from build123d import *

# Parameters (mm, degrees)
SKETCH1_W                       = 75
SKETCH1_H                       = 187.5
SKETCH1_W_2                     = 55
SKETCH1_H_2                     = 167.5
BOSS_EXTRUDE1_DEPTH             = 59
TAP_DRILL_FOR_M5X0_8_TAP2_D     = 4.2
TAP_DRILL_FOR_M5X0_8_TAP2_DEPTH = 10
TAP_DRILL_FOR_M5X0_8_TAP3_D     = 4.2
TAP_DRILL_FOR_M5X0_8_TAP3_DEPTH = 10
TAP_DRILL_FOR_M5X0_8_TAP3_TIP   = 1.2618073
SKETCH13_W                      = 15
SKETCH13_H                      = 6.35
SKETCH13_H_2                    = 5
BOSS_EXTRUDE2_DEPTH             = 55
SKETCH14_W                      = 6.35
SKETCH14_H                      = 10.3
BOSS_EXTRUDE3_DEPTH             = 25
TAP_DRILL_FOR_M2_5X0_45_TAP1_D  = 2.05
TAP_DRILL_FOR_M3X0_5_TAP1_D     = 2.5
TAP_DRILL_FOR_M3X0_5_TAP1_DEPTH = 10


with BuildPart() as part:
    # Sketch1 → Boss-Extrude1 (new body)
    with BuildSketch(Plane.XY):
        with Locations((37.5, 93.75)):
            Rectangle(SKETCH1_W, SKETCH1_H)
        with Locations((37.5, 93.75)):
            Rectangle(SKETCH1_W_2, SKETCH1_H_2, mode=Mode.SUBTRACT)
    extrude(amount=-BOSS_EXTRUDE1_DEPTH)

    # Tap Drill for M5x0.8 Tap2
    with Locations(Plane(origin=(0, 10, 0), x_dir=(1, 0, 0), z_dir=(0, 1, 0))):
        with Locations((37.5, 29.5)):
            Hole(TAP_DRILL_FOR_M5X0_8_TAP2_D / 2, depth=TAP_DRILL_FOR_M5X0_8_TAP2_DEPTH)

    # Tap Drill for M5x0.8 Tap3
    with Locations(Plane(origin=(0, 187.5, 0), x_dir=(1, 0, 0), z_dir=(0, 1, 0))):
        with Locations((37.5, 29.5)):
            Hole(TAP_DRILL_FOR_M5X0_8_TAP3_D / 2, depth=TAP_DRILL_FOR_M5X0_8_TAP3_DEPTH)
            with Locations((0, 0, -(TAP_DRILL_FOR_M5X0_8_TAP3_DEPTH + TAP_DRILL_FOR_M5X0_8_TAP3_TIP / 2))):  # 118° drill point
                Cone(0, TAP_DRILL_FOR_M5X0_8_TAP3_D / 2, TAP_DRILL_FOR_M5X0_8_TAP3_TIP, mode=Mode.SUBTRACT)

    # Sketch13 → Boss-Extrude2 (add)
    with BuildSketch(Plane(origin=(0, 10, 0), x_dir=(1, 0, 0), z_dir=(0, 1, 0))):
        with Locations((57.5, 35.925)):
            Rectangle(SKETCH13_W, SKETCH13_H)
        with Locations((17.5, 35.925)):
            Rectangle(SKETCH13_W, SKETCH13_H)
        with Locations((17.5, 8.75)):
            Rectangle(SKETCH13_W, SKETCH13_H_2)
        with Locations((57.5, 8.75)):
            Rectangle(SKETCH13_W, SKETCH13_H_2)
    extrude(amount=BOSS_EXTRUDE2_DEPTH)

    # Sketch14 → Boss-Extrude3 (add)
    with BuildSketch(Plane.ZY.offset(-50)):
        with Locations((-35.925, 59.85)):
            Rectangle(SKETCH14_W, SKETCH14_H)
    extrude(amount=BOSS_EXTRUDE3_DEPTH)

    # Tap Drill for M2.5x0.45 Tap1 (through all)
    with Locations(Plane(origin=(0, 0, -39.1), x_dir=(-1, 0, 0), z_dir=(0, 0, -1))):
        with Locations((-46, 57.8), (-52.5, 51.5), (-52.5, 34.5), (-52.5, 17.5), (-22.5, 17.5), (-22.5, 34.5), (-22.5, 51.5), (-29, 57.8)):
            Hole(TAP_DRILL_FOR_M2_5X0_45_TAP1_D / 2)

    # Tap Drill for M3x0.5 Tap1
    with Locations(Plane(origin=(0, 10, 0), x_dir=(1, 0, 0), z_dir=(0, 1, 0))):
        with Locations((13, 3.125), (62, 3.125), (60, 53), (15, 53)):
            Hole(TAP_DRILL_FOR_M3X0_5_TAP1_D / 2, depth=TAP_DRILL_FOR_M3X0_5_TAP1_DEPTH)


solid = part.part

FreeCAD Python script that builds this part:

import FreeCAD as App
import Part
import Sketcher

V = App.Vector

doc = App.newDocument("Part")
body = doc.addObject("PartDesign::Body", "Body")

sketch1 = body.newObject("Sketcher::SketchObject", "Sketch")
sketch1.AttachmentSupport = (doc.getObject("XY_Plane"), [""])
sketch1.MapMode = "FlatFace"
sketch1.addGeometry(Part.LineSegment(V(0, 188, 0), V(0, 0, 0)), False)
sketch1.addGeometry(Part.LineSegment(V(0, 0, 0), V(75, 0, 0)), False)
sketch1.addGeometry(Part.LineSegment(V(75, 0, 0), V(75, 188, 0)), False)
sketch1.addGeometry(Part.LineSegment(V(75, 188, 0), V(0, 188, 0)), False)
sketch1.addGeometry(Part.LineSegment(V(65, 10, 0), V(10, 10, 0)), False)
sketch1.addGeometry(Part.LineSegment(V(10, 10, 0), V(10, 178, 0)), False)
sketch1.addGeometry(Part.LineSegment(V(10, 178, 0), V(65, 178, 0)), False)
sketch1.addGeometry(Part.LineSegment(V(65, 178, 0), V(65, 10, 0)), False)
sketch1.addConstraint(Sketcher.Constraint("Coincident", 0, 2, 1, 1))
sketch1.addConstraint(Sketcher.Constraint("Coincident", 1, 2, 2, 1))
sketch1.addConstraint(Sketcher.Constraint("Coincident", 2, 2, 3, 1))
sketch1.addConstraint(Sketcher.Constraint("Coincident", 3, 2, 0, 1))
sketch1.addConstraint(Sketcher.Constraint("Coincident", 4, 2, 5, 1))
sketch1.addConstraint(Sketcher.Constraint("Coincident", 5, 2, 6, 1))
sketch1.addConstraint(Sketcher.Constraint("Coincident", 6, 2, 7, 1))
sketch1.addConstraint(Sketcher.Constraint("Coincident", 7, 2, 4, 1))
sketch1.addConstraint(Sketcher.Constraint("Vertical", 0))
sketch1.addConstraint(Sketcher.Constraint("Horizontal", 1))
sketch1.addConstraint(Sketcher.Constraint("Vertical", 2))
sketch1.addConstraint(Sketcher.Constraint("Horizontal", 3))
sketch1.addConstraint(Sketcher.Constraint("Horizontal", 4))
sketch1.addConstraint(Sketcher.Constraint("Vertical", 5))
sketch1.addConstraint(Sketcher.Constraint("Horizontal", 6))
sketch1.addConstraint(Sketcher.Constraint("Vertical", 7))
sketch1.addConstraint(Sketcher.Constraint("Coincident", 0, 2, -1, 1))
sketch1.addConstraint(Sketcher.Constraint("DistanceX", 1, 1, 1, 2, 75.0))
sketch1.addConstraint(Sketcher.Constraint("DistanceX", 4, 2, 4, 1, 55.0))
sketch1.addConstraint(Sketcher.Constraint("DistanceY", 0, 2, 0, 1, 187.5))
sketch1.addConstraint(Sketcher.Constraint("DistanceY", 5, 1, 5, 2, 167.5))
sketch1.addConstraint(Sketcher.Constraint("DistanceX", -1, 1, 4, 2, 10.0))
sketch1.addConstraint(Sketcher.Constraint("DistanceY", -1, 1, 4, 2, 10.0))
pad1 = body.newObject("PartDesign::Pad", "Pad")
pad1.Profile = sketch1
pad1.Length = 59
pad1.Reversed = True

sketch2 = body.newObject("Sketcher::SketchObject", "Sketch001")
sketch2.AttachmentSupport = (doc.getObject("XZ_Plane"), [""])
sketch2.MapMode = "FlatFace"
sketch2.AttachmentOffset = App.Placement(V(0, 0, -10), App.Rotation())
sketch2.addGeometry(Part.Circle(V(37.5, -29.5, 0), V(0, 0, 1), 2.1), False)
sketch2.addConstraint(Sketcher.Constraint("Diameter", 0, 4.2))
sketch2.addConstraint(Sketcher.Constraint("DistanceX", -1, 1, 0, 3, 37.5))
sketch2.addConstraint(Sketcher.Constraint("DistanceY", 0, 3, -1, 1, 29.5))
doc.recompute()
hole = body.newObject("PartDesign::Hole", "Hole")
hole.Profile = sketch2
hole.ThreadType = "None"
hole.Diameter = 4.2
hole.DepthType = "Dimension"
hole.Depth = 10
hole.DrillPoint = "Flat"
hole.Reversed = True

sketch3 = body.newObject("Sketcher::SketchObject", "Sketch002")
sketch3.AttachmentSupport = (doc.getObject("XZ_Plane"), [""])
sketch3.MapMode = "FlatFace"
sketch3.AttachmentOffset = App.Placement(V(0, 0, -187.5), App.Rotation())
sketch3.addGeometry(Part.Circle(V(37.5, -29.5, 0), V(0, 0, 1), 2.1), False)
sketch3.addConstraint(Sketcher.Constraint("Diameter", 0, 4.2))
sketch3.addConstraint(Sketcher.Constraint("DistanceX", -1, 1, 0, 3, 37.5))
sketch3.addConstraint(Sketcher.Constraint("DistanceY", 0, 3, -1, 1, 29.5))
doc.recompute()
hole2 = body.newObject("PartDesign::Hole", "Hole001")
hole2.Profile = sketch3
hole2.ThreadType = "None"
hole2.Diameter = 4.2
hole2.DepthType = "Dimension"
hole2.Depth = 10
hole2.DrillPoint = "Angled"
hole2.DrillPointAngle = 118
hole2.Reversed = True

sketch4 = body.newObject("Sketcher::SketchObject", "Sketch003")
sketch4.AttachmentSupport = (doc.getObject("XZ_Plane"), [""])
sketch4.MapMode = "FlatFace"
sketch4.AttachmentOffset = App.Placement(V(0, 0, -10), App.Rotation())
sketch4.addGeometry(Part.LineSegment(V(50, -39, 0), V(50, -33, 0)), False)
sketch4.addGeometry(Part.LineSegment(V(50, -33, 0), V(65, -33, 0)), False)
sketch4.addGeometry(Part.LineSegment(V(65, -33, 0), V(65, -39, 0)), False)
sketch4.addGeometry(Part.LineSegment(V(65, -39, 0), V(50, -39, 0)), False)
sketch4.addGeometry(Part.LineSegment(V(10, -39, 0), V(10, -33, 0)), False)
sketch4.addGeometry(Part.LineSegment(V(10, -33, 0), V(25, -33, 0)), False)
sketch4.addGeometry(Part.LineSegment(V(25, -33, 0), V(25, -39, 0)), False)
sketch4.addGeometry(Part.LineSegment(V(25, -39, 0), V(10, -39, 0)), False)
sketch4.addGeometry(Part.LineSegment(V(10, -11, 0), V(10, -6, 0)), False)
sketch4.addGeometry(Part.LineSegment(V(10, -6, 0), V(25, -6, 0)), False)
sketch4.addGeometry(Part.LineSegment(V(25, -6, 0), V(25, -11, 0)), False)
sketch4.addGeometry(Part.LineSegment(V(25, -11, 0), V(10, -11, 0)), False)
sketch4.addGeometry(Part.LineSegment(V(50, -11, 0), V(50, -6, 0)), False)
sketch4.addGeometry(Part.LineSegment(V(50, -6, 0), V(65, -6, 0)), False)
sketch4.addGeometry(Part.LineSegment(V(65, -6, 0), V(65, -11, 0)), False)
sketch4.addGeometry(Part.LineSegment(V(65, -11, 0), V(50, -11, 0)), False)
sketch4.addConstraint(Sketcher.Constraint("Coincident", 0, 2, 1, 1))
sketch4.addConstraint(Sketcher.Constraint("Coincident", 1, 2, 2, 1))
sketch4.addConstraint(Sketcher.Constraint("Coincident", 2, 2, 3, 1))
sketch4.addConstraint(Sketcher.Constraint("Coincident", 3, 2, 0, 1))
sketch4.addConstraint(Sketcher.Constraint("Coincident", 4, 2, 5, 1))
sketch4.addConstraint(Sketcher.Constraint("Coincident", 5, 2, 6, 1))
sketch4.addConstraint(Sketcher.Constraint("Coincident", 6, 2, 7, 1))
sketch4.addConstraint(Sketcher.Constraint("Coincident", 7, 2, 4, 1))
sketch4.addConstraint(Sketcher.Constraint("Coincident", 8, 2, 9, 1))
sketch4.addConstraint(Sketcher.Constraint("Coincident", 9, 2, 10, 1))
sketch4.addConstraint(Sketcher.Constraint("Coincident", 10, 2, 11, 1))
sketch4.addConstraint(Sketcher.Constraint("Coincident", 11, 2, 8, 1))
sketch4.addConstraint(Sketcher.Constraint("Coincident", 12, 2, 13, 1))
sketch4.addConstraint(Sketcher.Constraint("Coincident", 13, 2, 14, 1))
sketch4.addConstraint(Sketcher.Constraint("Coincident", 14, 2, 15, 1))
sketch4.addConstraint(Sketcher.Constraint("Coincident", 15, 2, 12, 1))
sketch4.addConstraint(Sketcher.Constraint("Vertical", 0))
sketch4.addConstraint(Sketcher.Constraint("Horizontal", 1))
sketch4.addConstraint(Sketcher.Constraint("Vertical", 2))
sketch4.addConstraint(Sketcher.Constraint("Horizontal", 3))
sketch4.addConstraint(Sketcher.Constraint("Vertical", 4))
sketch4.addConstraint(Sketcher.Constraint("Horizontal", 5))
sketch4.addConstraint(Sketcher.Constraint("Vertical", 6))
sketch4.addConstraint(Sketcher.Constraint("Horizontal", 7))
sketch4.addConstraint(Sketcher.Constraint("Vertical", 8))
sketch4.addConstraint(Sketcher.Constraint("Horizontal", 9))
sketch4.addConstraint(Sketcher.Constraint("Vertical", 10))
sketch4.addConstraint(Sketcher.Constraint("Horizontal", 11))
sketch4.addConstraint(Sketcher.Constraint("Vertical", 12))
sketch4.addConstraint(Sketcher.Constraint("Horizontal", 13))
sketch4.addConstraint(Sketcher.Constraint("Vertical", 14))
sketch4.addConstraint(Sketcher.Constraint("Horizontal", 15))
sketch4.addConstraint(Sketcher.Constraint("Horizontal", 1, 2, 4, 2))
sketch4.addConstraint(Sketcher.Constraint("Horizontal", 3, 2, 6, 2))
sketch4.addConstraint(Sketcher.Constraint("Horizontal", 9, 2, 12, 2))
sketch4.addConstraint(Sketcher.Constraint("Horizontal", 11, 2, 14, 2))
sketch4.addConstraint(Sketcher.Constraint("Vertical", 7, 2, 8, 2))
sketch4.addConstraint(Sketcher.Constraint("Vertical", 6, 2, 9, 2))
sketch4.addConstraint(Sketcher.Constraint("Vertical", 3, 2, 12, 2))
sketch4.addConstraint(Sketcher.Constraint("Vertical", 2, 2, 13, 2))
sketch4.addConstraint(Sketcher.Constraint("Equal", 3, 5))
sketch4.addConstraint(Sketcher.Constraint("DistanceX", 1, 1, 1, 2, 15.0))
sketch4.addConstraint(Sketcher.Constraint("DistanceY", 8, 1, 8, 2, 5.0))
sketch4.addConstraint(Sketcher.Constraint("DistanceX", -1, 1, 0, 2, 50.0))
sketch4.addConstraint(Sketcher.Constraint("DistanceX", -1, 1, 4, 2, 10.0))
sketch4.addConstraint(Sketcher.Constraint("DistanceY", 0, 1, 0, 2, 6.35))
sketch4.addConstraint(Sketcher.Constraint("DistanceY", 2, 2, -1, 1, 39.1))
sketch4.addConstraint(Sketcher.Constraint("DistanceY", 4, 2, 8, 2, 26.5))
pad2 = body.newObject("PartDesign::Pad", "Pad001")
pad2.Profile = sketch4
pad2.Length = 55
pad2.Reversed = True

sketch5 = body.newObject("Sketcher::SketchObject", "Sketch004")
sketch5.AttachmentSupport = (doc.getObject("YZ_Plane"), [""])
sketch5.MapMode = "FlatFace"
sketch5.AttachmentOffset = App.Placement(V(0, 0, 50), App.Rotation())
sketch5.addGeometry(Part.LineSegment(V(65, -39, 0), V(55, -39, 0)), False)
sketch5.addGeometry(Part.LineSegment(V(55, -39, 0), V(55, -33, 0)), False)
sketch5.addGeometry(Part.LineSegment(V(55, -33, 0), V(65, -33, 0)), False)
sketch5.addGeometry(Part.LineSegment(V(65, -33, 0), V(65, -39, 0)), False)
sketch5.addConstraint(Sketcher.Constraint("Coincident", 0, 2, 1, 1))
sketch5.addConstraint(Sketcher.Constraint("Coincident", 1, 2, 2, 1))
sketch5.addConstraint(Sketcher.Constraint("Coincident", 2, 2, 3, 1))
sketch5.addConstraint(Sketcher.Constraint("Coincident", 3, 2, 0, 1))
sketch5.addConstraint(Sketcher.Constraint("Horizontal", 0))
sketch5.addConstraint(Sketcher.Constraint("Vertical", 1))
sketch5.addConstraint(Sketcher.Constraint("Horizontal", 2))
sketch5.addConstraint(Sketcher.Constraint("Vertical", 3))
sketch5.addConstraint(Sketcher.Constraint("DistanceX", 0, 2, 0, 1, 10.3))
sketch5.addConstraint(Sketcher.Constraint("DistanceX", -1, 1, 2, 2, 65.0))
sketch5.addConstraint(Sketcher.Constraint("DistanceY", 1, 1, 1, 2, 6.35))
sketch5.addConstraint(Sketcher.Constraint("DistanceY", 0, 2, -1, 1, 39.1))
pad3 = body.newObject("PartDesign::Pad", "Pad002")
pad3.Profile = sketch5
pad3.Length = 25
pad3.Reversed = True

sketch6 = body.newObject("Sketcher::SketchObject", "Sketch005")
sketch6.AttachmentSupport = (doc.getObject("XY_Plane"), [""])
sketch6.MapMode = "FlatFace"
sketch6.AttachmentOffset = App.Placement(V(0, 0, -39.1), App.Rotation())
sketch6.addGeometry(Part.Circle(V(46, 57.8, 0), V(0, 0, 1), 1), False)
sketch6.addGeometry(Part.Circle(V(52.5, 51.5, 0), V(0, 0, 1), 1), False)
sketch6.addGeometry(Part.Circle(V(52.5, 34.5, 0), V(0, 0, 1), 1), False)
sketch6.addGeometry(Part.Circle(V(52.5, 17.5, 0), V(0, 0, 1), 1), False)
sketch6.addGeometry(Part.Circle(V(22.5, 17.5, 0), V(0, 0, 1), 1), False)
sketch6.addGeometry(Part.Circle(V(22.5, 34.5, 0), V(0, 0, 1), 1), False)
sketch6.addGeometry(Part.Circle(V(22.5, 51.5, 0), V(0, 0, 1), 1), False)
sketch6.addGeometry(Part.Circle(V(29, 57.8, 0), V(0, 0, 1), 1), False)
sketch6.addConstraint(Sketcher.Constraint("Equal", 0, 1))
sketch6.addConstraint(Sketcher.Constraint("Equal", 1, 2))
sketch6.addConstraint(Sketcher.Constraint("Equal", 2, 3))
sketch6.addConstraint(Sketcher.Constraint("Equal", 3, 4))
sketch6.addConstraint(Sketcher.Constraint("Equal", 4, 5))
sketch6.addConstraint(Sketcher.Constraint("Equal", 5, 6))
sketch6.addConstraint(Sketcher.Constraint("Equal", 6, 7))
sketch6.addConstraint(Sketcher.Constraint("Horizontal", 3, 3, 4, 3))
sketch6.addConstraint(Sketcher.Constraint("Horizontal", 2, 3, 5, 3))
sketch6.addConstraint(Sketcher.Constraint("Horizontal", 1, 3, 6, 3))
sketch6.addConstraint(Sketcher.Constraint("Horizontal", 0, 3, 7, 3))
sketch6.addConstraint(Sketcher.Constraint("Vertical", 1, 3, 2, 3))
sketch6.addConstraint(Sketcher.Constraint("Vertical", 2, 3, 3, 3))
sketch6.addConstraint(Sketcher.Constraint("Vertical", 4, 3, 5, 3))
sketch6.addConstraint(Sketcher.Constraint("Vertical", 5, 3, 6, 3))
sketch6.addConstraint(Sketcher.Constraint("Diameter", 0, 2.05))
sketch6.addConstraint(Sketcher.Constraint("DistanceX", -1, 1, 0, 3, 46.0))
sketch6.addConstraint(Sketcher.Constraint("DistanceX", -1, 1, 7, 3, 29.0))
sketch6.addConstraint(Sketcher.Constraint("DistanceY", 2, 3, 1, 3, 17.0))
sketch6.addConstraint(Sketcher.Constraint("DistanceY", 3, 3, 2, 3, 17.0))
sketch6.addConstraint(Sketcher.Constraint("DistanceX", 4, 3, 3, 3, 30.0))
sketch6.addConstraint(Sketcher.Constraint("DistanceY", -1, 1, 0, 3, 57.8))
sketch6.addConstraint(Sketcher.Constraint("DistanceX", -1, 1, 1, 3, 52.5))
sketch6.addConstraint(Sketcher.Constraint("DistanceY", -1, 1, 1, 3, 51.5))
doc.recompute()
hole3 = body.newObject("PartDesign::Hole", "Hole002")
hole3.Profile = sketch6
hole3.ThreadType = "None"
hole3.Diameter = 2.05
hole3.DepthType = "ThroughAll"
hole3.Reversed = True

sketch7 = body.newObject("Sketcher::SketchObject", "Sketch006")
sketch7.AttachmentSupport = (doc.getObject("XZ_Plane"), [""])
sketch7.MapMode = "FlatFace"
sketch7.AttachmentOffset = App.Placement(V(0, 0, -10), App.Rotation())
sketch7.addGeometry(Part.Circle(V(13, -3.1, 0), V(0, 0, 1), 1.2), False)
sketch7.addGeometry(Part.Circle(V(62, -3.1, 0), V(0, 0, 1), 1.2), False)
sketch7.addGeometry(Part.Circle(V(60, -53, 0), V(0, 0, 1), 1.2), False)
sketch7.addGeometry(Part.Circle(V(15, -53, 0), V(0, 0, 1), 1.2), False)
sketch7.addConstraint(Sketcher.Constraint("Equal", 0, 1))
sketch7.addConstraint(Sketcher.Constraint("Equal", 1, 2))
sketch7.addConstraint(Sketcher.Constraint("Equal", 2, 3))
sketch7.addConstraint(Sketcher.Constraint("Horizontal", 0, 3, 1, 3))
sketch7.addConstraint(Sketcher.Constraint("Horizontal", 2, 3, 3, 3))
sketch7.addConstraint(Sketcher.Constraint("Diameter", 0, 2.5))
sketch7.addConstraint(Sketcher.Constraint("DistanceX", -1, 1, 0, 3, 13.0))
sketch7.addConstraint(Sketcher.Constraint("DistanceX", -1, 1, 1, 3, 62.0))
sketch7.addConstraint(Sketcher.Constraint("DistanceX", -1, 1, 2, 3, 60.0))
sketch7.addConstraint(Sketcher.Constraint("DistanceY", 2, 3, -1, 1, 53.0))
sketch7.addConstraint(Sketcher.Constraint("DistanceX", -1, 1, 3, 3, 15.0))
sketch7.addConstraint(Sketcher.Constraint("DistanceY", 0, 3, -1, 1, 3.125))
doc.recompute()
hole4 = body.newObject("PartDesign::Hole", "Hole003")
hole4.Profile = sketch7
hole4.ThreadType = "None"
hole4.Diameter = 2.5
hole4.DepthType = "Dimension"
hole4.Depth = 10
hole4.DrillPoint = "Flat"
hole4.Reversed = True

doc.recompute()
